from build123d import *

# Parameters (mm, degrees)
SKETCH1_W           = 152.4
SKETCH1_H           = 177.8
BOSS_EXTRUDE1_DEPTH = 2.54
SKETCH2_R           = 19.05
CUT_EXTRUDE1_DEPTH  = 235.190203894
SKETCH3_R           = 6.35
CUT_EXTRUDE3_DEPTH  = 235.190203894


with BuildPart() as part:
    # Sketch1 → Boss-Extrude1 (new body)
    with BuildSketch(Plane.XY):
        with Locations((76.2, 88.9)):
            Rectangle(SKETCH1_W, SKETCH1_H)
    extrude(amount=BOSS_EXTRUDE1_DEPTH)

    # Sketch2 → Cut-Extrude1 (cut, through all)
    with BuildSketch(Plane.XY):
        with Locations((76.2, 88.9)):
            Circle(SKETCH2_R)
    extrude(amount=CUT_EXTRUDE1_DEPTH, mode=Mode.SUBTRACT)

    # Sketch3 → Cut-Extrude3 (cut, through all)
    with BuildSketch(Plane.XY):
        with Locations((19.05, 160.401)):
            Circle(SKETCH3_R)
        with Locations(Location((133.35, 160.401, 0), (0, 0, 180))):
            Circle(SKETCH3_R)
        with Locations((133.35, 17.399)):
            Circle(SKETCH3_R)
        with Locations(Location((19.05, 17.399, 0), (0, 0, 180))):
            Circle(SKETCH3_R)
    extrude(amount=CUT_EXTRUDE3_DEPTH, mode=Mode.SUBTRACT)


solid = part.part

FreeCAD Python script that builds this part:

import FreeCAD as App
import Part
import Sketcher
from FreeCAD import Vector
Q = App.Units.Quantity

doc = App.newDocument("Part")
body = doc.addObject("PartDesign::Body", "Body")

# Sketch on XY plane
sketch1 = doc.addObject("Sketcher::SketchObject", "Sketch")
body.addObject(sketch1)
sketch1.AttachmentSupport = (doc.XY_Plane, [""])
sketch1.MapMode = "FlatFace"
sketch1.addGeometry([
    Part.LineSegment(Vector(0, 178, 0), Vector(0, 0, 0)),
    Part.LineSegment(Vector(0, 0, 0), Vector(152, 0, 0)),
    Part.LineSegment(Vector(152, 0, 0), Vector(152, 178, 0)),
    Part.LineSegment(Vector(152, 178, 0), Vector(0, 178, 0)),
], False)
sketch1.addConstraint([
    Sketcher.Constraint("Coincident", 0, 2, 1, 1),
    Sketcher.Constraint("Coincident", 1, 2, 2, 1),
    Sketcher.Constraint("Coincident", 2, 2, 3, 1),
    Sketcher.Constraint("Coincident", 3, 2, 0, 1),
    Sketcher.Constraint("Vertical", 0),
    Sketcher.Constraint("Horizontal", 1),
    Sketcher.Constraint("Vertical", 2),
    Sketcher.Constraint("Horizontal", 3),
    Sketcher.Constraint("Coincident", 0, 2, -1, 1),
    Sketcher.Constraint("DistanceX", 1, 1, 1, 2, Q("6 in")),
    Sketcher.Constraint("DistanceY", 0, 2, 0, 1, Q("7 in")),
])
pad1 = doc.addObject("PartDesign::Pad", "Pad")
body.addObject(pad1)
pad1.Profile = sketch1
pad1.Length = Q("0.1 in")

# Sketch on XY plane
sketch2 = doc.addObject("Sketcher::SketchObject", "Sketch001")
body.addObject(sketch2)
sketch2.AttachmentSupport = (doc.XY_Plane, [""])
sketch2.MapMode = "FlatFace"
sketch2.addGeometry(Part.Circle(Vector(76, 89, 0), Vector(0, 0, 1), 19), False)
sketch2.addConstraint([
    Sketcher.Constraint("Diameter", 0, Q("1.5 in")),
    Sketcher.Constraint("DistanceX", -1, 1, 0, 3, Q("3 in")),
    Sketcher.Constraint("DistanceY", -1, 1, 0, 3, Q("3.5 in")),
])
pocket1 = doc.addObject("PartDesign::Pocket", "Pocket")
body.addObject(pocket1)
pocket1.Profile = sketch2
pocket1.Type = "ThroughAll"
pocket1.Reversed = True

# Sketch on XY plane
sketch3 = doc.addObject("Sketcher::SketchObject", "Sketch002")
body.addObject(sketch3)
sketch3.AttachmentSupport = (doc.XY_Plane, [""])
sketch3.MapMode = "FlatFace"
sketch3.addGeometry([
    Part.Circle(Vector(19, 160, 0), Vector(0, 0, 1), 6),
    Part.Circle(Vector(133, 160, 0), Vector(0, 0, 1), 6),
    Part.Circle(Vector(133, 17, 0), Vector(0, 0, 1), 6),
    Part.Circle(Vector(19, 17, 0), Vector(0, 0, 1), 6),
], False)
sketch3.addConstraint([
    Sketcher.Constraint("Equal", 0, 1),
    Sketcher.Constraint("Equal", 1, 2),
    Sketcher.Constraint("Equal", 2, 3),
    Sketcher.Constraint("Horizontal", 0, 3, 1, 3),
    Sketcher.Constraint("Horizontal", 2, 3, 3, 3),
    Sketcher.Constraint("Vertical", 1, 3, 2, 3),
    Sketcher.Constraint("Vertical", 0, 3, 3, 3),
    Sketcher.Constraint("Diameter", 0, Q("0.5 in")),
    Sketcher.Constraint("DistanceX", 0, 3, 1, 3, Q("4.5 in")),
    Sketcher.Constraint("DistanceX", -1, 1, 0, 3, Q("0.75 in")),
    Sketcher.Constraint("DistanceY", 2, 3, 1, 3, Q("5.63 in")),
    Sketcher.Constraint("DistanceY", -1, 1, 0, 3, Q("6.315 in")),
])
pocket2 = doc.addObject("PartDesign::Pocket", "Pocket001")
body.addObject(pocket2)
pocket2.Profile = sketch3
pocket2.Type = "ThroughAll"
pocket2.Reversed = True

doc.recompute()
